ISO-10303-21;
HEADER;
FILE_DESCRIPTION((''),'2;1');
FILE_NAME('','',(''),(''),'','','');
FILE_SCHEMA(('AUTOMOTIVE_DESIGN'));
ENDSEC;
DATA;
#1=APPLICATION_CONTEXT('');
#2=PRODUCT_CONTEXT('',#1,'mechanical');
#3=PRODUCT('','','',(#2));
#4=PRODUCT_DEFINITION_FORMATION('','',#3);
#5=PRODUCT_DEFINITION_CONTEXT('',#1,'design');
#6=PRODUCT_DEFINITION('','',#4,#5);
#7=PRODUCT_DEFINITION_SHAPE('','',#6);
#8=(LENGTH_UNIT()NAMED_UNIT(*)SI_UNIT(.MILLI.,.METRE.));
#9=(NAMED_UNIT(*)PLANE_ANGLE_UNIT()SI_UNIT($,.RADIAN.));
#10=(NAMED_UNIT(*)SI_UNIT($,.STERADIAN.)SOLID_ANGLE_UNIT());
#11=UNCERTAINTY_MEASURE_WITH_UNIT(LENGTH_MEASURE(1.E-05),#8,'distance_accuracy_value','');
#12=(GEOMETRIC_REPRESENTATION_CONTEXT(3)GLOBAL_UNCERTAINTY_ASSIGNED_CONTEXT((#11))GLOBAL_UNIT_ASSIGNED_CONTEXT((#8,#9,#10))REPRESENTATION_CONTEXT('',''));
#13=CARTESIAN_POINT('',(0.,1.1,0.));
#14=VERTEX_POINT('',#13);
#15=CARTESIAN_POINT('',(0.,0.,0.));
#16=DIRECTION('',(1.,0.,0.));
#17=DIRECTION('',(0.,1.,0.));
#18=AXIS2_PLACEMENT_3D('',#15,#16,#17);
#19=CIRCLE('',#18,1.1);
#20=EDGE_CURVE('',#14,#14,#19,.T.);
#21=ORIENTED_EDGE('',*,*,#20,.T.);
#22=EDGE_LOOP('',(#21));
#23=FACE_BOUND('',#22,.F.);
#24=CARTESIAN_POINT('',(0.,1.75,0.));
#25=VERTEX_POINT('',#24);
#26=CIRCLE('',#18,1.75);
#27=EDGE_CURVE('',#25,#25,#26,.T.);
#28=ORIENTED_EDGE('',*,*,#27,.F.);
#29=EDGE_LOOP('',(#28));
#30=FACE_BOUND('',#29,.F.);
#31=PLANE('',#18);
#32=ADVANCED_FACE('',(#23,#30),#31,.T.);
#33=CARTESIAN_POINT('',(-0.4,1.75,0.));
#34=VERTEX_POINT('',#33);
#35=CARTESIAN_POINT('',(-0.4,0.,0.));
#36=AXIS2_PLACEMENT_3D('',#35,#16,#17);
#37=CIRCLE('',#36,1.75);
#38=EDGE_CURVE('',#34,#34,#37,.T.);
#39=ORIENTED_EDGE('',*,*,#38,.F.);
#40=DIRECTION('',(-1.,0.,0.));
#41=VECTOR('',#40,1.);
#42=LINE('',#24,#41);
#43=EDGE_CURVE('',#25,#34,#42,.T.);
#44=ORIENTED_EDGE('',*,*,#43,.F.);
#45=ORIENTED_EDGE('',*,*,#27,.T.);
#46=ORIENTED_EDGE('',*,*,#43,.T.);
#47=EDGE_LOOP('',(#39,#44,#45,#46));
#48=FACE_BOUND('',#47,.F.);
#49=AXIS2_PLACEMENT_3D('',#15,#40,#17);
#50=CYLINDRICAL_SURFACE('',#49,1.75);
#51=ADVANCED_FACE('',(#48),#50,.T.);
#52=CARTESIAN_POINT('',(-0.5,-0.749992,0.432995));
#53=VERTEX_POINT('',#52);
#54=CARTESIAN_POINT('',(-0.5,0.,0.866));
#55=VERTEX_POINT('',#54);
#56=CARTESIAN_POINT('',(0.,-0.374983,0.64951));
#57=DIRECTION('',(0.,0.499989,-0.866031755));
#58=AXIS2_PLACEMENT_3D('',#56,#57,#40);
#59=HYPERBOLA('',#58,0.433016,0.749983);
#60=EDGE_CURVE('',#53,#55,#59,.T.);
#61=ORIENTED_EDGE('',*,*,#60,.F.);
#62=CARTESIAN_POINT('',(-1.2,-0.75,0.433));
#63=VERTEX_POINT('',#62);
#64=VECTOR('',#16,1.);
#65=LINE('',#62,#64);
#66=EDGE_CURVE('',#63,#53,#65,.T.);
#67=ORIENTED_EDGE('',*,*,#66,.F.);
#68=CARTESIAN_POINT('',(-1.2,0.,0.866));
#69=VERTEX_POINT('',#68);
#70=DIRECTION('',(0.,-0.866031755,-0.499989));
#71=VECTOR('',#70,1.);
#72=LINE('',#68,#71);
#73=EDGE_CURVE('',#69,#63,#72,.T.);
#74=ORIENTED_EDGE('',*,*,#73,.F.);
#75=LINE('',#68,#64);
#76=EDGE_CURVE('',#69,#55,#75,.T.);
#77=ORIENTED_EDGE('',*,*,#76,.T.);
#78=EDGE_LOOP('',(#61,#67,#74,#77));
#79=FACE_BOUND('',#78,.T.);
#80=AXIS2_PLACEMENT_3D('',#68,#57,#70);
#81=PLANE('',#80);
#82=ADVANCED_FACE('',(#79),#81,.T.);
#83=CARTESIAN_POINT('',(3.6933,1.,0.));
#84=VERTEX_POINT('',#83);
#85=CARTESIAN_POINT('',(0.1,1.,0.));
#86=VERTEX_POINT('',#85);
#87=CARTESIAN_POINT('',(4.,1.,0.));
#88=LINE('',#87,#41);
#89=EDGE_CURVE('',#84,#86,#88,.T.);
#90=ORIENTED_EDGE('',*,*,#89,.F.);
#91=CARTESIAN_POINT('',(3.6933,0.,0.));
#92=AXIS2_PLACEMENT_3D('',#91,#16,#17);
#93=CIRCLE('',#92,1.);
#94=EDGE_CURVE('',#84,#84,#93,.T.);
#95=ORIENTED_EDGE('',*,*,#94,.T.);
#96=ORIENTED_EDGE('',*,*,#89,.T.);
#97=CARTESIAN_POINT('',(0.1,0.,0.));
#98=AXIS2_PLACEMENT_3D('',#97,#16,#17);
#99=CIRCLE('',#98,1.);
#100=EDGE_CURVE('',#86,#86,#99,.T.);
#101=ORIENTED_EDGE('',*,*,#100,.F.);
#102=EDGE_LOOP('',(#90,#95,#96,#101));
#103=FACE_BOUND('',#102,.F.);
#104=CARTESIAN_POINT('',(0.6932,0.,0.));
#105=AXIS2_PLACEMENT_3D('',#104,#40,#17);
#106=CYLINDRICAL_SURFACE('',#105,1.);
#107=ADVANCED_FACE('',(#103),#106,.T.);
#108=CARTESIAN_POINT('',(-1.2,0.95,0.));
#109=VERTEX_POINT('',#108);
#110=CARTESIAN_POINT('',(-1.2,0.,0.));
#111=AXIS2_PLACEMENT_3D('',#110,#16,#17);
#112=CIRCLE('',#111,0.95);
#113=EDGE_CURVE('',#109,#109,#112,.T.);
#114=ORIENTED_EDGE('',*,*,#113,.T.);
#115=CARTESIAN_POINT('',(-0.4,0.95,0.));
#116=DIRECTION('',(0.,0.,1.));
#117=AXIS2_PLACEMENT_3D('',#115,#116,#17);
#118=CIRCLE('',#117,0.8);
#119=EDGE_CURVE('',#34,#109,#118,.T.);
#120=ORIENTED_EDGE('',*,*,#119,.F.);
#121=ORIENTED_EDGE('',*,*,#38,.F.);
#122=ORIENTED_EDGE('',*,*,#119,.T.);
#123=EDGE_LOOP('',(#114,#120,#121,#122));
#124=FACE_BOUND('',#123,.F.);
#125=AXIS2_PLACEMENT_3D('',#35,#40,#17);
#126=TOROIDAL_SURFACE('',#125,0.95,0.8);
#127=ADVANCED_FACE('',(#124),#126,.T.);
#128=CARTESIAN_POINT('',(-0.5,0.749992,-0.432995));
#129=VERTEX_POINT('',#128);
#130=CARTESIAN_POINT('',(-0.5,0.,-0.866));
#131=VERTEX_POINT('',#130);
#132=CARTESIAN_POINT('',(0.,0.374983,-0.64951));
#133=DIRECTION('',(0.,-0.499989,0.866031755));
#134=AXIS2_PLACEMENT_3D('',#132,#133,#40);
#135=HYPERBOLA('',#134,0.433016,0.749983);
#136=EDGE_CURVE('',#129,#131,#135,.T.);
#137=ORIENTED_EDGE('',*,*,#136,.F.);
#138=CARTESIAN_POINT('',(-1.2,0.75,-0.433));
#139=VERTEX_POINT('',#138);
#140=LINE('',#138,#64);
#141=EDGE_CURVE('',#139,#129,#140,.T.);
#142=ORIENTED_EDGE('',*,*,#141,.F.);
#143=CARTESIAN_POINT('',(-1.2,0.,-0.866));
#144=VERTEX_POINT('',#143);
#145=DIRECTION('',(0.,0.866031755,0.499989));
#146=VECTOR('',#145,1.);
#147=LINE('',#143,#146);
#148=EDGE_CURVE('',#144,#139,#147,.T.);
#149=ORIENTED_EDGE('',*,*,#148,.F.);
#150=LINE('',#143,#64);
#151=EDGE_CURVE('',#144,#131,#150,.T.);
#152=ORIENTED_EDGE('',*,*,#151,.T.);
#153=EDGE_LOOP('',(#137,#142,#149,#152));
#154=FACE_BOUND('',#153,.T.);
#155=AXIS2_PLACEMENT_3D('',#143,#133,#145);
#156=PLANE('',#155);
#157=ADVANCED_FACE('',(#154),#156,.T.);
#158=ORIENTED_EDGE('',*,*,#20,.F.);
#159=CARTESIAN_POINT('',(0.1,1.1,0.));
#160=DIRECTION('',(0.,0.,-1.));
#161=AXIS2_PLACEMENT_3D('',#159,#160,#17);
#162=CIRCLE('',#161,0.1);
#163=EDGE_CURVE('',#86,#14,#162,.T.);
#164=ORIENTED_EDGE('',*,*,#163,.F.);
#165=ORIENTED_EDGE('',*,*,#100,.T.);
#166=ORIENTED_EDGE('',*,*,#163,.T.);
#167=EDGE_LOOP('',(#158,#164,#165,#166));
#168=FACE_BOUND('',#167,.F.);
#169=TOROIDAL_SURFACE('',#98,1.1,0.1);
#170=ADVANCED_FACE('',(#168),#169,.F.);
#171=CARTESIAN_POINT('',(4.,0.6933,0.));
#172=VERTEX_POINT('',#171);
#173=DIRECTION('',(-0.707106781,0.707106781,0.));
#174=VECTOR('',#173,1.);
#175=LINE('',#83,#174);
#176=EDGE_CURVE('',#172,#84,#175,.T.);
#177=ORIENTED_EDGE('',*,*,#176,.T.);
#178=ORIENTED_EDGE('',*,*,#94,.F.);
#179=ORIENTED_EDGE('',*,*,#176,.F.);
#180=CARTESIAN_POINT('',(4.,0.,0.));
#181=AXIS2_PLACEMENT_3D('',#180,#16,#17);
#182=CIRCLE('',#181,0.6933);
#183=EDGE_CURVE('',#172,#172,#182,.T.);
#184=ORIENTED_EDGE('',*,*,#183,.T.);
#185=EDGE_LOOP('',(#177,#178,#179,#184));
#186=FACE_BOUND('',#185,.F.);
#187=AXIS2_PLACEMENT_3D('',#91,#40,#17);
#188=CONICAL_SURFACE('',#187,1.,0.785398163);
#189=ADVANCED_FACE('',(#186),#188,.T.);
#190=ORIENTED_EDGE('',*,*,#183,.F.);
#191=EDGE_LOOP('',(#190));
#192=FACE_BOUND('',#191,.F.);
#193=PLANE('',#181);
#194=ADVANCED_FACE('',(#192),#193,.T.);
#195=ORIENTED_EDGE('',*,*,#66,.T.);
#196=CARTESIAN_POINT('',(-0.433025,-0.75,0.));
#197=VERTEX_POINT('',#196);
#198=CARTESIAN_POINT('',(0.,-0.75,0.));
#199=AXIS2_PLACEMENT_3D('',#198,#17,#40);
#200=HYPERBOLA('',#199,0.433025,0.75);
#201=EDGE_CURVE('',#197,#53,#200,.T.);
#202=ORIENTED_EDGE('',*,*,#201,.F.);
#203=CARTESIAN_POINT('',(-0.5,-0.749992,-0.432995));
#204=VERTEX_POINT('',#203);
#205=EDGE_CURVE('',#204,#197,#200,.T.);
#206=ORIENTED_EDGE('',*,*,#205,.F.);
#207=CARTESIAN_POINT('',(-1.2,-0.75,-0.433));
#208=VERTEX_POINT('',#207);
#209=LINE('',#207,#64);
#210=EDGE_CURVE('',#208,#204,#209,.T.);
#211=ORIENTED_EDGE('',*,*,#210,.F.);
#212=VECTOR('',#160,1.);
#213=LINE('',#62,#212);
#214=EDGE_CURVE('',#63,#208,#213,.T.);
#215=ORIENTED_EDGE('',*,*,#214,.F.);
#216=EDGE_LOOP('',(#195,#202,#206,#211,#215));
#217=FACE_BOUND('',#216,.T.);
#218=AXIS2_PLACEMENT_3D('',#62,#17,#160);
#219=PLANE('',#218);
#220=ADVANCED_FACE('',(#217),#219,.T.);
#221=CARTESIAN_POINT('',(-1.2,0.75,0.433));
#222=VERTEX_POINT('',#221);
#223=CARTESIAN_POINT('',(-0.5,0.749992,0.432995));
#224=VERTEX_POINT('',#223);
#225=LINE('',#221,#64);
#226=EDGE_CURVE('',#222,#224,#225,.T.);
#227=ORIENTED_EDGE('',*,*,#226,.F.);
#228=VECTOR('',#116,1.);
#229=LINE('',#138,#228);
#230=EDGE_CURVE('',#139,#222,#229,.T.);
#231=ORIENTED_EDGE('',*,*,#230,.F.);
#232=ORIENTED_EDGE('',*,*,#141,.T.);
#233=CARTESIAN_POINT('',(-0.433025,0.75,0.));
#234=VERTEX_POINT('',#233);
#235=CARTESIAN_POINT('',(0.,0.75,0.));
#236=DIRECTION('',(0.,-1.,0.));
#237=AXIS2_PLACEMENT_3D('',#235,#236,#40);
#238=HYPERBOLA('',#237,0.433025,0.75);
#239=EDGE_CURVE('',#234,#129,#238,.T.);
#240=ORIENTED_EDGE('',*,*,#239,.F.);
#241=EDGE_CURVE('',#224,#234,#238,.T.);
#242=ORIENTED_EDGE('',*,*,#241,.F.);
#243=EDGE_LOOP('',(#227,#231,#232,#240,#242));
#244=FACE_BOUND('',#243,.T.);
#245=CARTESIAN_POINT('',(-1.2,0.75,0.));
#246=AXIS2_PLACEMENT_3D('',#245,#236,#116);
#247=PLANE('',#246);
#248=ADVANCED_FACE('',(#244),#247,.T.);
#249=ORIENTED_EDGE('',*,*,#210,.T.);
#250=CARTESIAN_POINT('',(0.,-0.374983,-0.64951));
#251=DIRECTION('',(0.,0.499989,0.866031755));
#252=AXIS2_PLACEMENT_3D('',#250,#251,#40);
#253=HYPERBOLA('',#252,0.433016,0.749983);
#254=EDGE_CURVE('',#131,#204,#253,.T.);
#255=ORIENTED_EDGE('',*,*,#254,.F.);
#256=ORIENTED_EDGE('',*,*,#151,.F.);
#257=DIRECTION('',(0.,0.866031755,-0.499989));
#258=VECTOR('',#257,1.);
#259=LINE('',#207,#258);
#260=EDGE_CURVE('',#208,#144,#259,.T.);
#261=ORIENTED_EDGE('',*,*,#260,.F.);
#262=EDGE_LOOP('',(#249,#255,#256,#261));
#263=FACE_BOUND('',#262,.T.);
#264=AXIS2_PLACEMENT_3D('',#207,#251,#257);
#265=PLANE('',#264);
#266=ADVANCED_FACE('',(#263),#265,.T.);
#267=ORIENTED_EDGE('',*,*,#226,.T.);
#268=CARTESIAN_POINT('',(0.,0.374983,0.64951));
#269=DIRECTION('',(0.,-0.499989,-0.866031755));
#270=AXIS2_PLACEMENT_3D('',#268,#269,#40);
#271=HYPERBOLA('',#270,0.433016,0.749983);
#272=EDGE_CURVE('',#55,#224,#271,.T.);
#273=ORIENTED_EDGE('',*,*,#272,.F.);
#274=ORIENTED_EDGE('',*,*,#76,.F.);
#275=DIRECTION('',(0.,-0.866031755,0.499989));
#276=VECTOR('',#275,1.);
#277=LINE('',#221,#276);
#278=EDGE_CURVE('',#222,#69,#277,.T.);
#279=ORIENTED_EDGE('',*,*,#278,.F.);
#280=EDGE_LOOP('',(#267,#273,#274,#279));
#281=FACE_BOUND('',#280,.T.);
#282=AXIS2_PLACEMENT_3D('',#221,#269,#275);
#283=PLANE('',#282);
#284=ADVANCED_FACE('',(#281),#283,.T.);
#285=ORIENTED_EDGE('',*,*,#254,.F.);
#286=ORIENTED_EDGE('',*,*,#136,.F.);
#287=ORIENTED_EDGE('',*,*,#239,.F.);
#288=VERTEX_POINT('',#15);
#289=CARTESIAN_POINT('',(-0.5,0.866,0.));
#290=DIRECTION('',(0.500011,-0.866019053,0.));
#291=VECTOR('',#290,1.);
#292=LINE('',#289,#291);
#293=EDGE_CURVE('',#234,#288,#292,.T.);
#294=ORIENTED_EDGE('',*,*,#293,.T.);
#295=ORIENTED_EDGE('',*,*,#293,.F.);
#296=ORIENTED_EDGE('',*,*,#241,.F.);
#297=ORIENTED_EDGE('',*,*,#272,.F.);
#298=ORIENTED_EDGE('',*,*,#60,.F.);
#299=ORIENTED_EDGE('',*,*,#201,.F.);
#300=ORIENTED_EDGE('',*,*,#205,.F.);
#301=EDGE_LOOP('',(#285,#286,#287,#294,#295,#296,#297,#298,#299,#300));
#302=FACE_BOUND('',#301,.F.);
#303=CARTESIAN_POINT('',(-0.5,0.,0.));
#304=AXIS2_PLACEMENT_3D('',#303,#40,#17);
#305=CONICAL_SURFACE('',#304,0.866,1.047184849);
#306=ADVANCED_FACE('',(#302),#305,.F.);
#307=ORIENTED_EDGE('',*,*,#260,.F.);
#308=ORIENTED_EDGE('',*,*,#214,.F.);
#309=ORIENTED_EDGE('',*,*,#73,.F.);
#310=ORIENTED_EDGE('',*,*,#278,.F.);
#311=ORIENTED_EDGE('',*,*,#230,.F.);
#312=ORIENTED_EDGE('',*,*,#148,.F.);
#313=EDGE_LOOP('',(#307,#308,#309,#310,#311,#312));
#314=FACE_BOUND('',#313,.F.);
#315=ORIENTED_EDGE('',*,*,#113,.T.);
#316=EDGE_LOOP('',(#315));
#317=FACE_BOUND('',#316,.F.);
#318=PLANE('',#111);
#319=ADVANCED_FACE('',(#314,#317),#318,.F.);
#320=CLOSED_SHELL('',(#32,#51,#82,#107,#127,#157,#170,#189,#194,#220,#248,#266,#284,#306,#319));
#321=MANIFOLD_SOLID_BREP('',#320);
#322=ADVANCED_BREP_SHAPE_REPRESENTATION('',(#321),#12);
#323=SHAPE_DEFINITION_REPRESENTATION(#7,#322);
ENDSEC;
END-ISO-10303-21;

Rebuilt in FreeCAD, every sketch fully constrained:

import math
import FreeCAD as App
import Part
import Sketcher

V = App.Vector
Q = App.Units.Quantity


def edges_at(feature, points):
    """Names of the edges that pass closest to the given points."""
    edges = feature.Shape.Edges
    near = lambda p: min(range(len(edges)), key=lambda i: edges[i].distToShape(Part.Vertex(*p))[0])
    return sorted({f"Edge{near(p) + 1}" for p in points})


def add_polygon(sketch, points):
    """Adds a closed chain of lines whose ends are joined by coincident constraints."""
    first, n = sketch.GeometryCount, len(points)
    for a, b in zip(points, points[1:] + points[:1]):
        sketch.addGeometry(Part.LineSegment(App.Vector(*a, 0), App.Vector(*b, 0)), False)
    for i in range(n):
        sketch.addConstraint(Sketcher.Constraint("Coincident", first + i, 2, first + (i + 1) % n, 1))

doc = App.newDocument("Part")
body = doc.addObject("PartDesign::Body", "Body")

# Sketch on XY plane
sketch1 = body.newObject("Sketcher::SketchObject", "Sketch")
sketch1.AttachmentSupport = (doc.getObject("XY_Plane"), [""])
sketch1.MapMode = "FlatFace"
add_polygon(sketch1, [(0, 1), (0, 1.8), (-1.2, 1.8), (-1.2, 0.9), (-0.5, 0.9), (0, 0), (4, 0), (4, 1)])  # lines 0-7
sketch1.addConstraint([
    Sketcher.Constraint("Vertical", 0),
    Sketcher.Constraint("Horizontal", 1),
    Sketcher.Constraint("Vertical", 2),
    Sketcher.Constraint("Horizontal", 3),
    Sketcher.Constraint("Horizontal", 5),
    Sketcher.Constraint("Vertical", 6),
    Sketcher.Constraint("Horizontal", 7),
    Sketcher.Constraint("Coincident", 4, 2, -1, 1),
    Sketcher.Constraint("PointOnObject", 0, 2, -2),
    Sketcher.Constraint("DistanceX", 5, 1, 5, 2, 4.0),
    Sketcher.Constraint("DistanceX", 1, 2, 1, 1, 1.2),
    Sketcher.Constraint("DistanceX", 3, 1, 3, 2, 0.7),
    Sketcher.Constraint("DistanceY", 6, 1, 6, 2, 1.0),
    Sketcher.Constraint("Angle", 4, Q("-59.9993 deg")),
    Sketcher.Constraint("DistanceY", 0, 1, 0, 2, 0.75),
])
revolution = body.newObject("PartDesign::Revolution", "Revolution")
revolution.Profile = sketch1
revolution.ReferenceAxis = (sketch1, ["H_Axis"])
revolution.Angle = 360

# Sketch on YZ plane
sketch2 = body.newObject("Sketcher::SketchObject", "Sketch001")
sketch2.AttachmentSupport = (doc.getObject("YZ_Plane"), [""])
sketch2.MapMode = "FlatFace"
sketch2.AttachmentOffset = App.Placement(V(0, 0, -1.2), App.Rotation())
sketch2.addGeometry([
    Part.LineSegment(V(0.8, 0.4, 0), V(0, 0.9, 0)),  # 0
    Part.ArcOfCircle(Part.Circle(V(0, 0, 0), V(0, 0, 1), 0.9), math.radians(30), math.radians(90)),  # 1
    Part.ArcOfCircle(Part.Circle(V(0, 0, 0), V(0, 0, 1), 0.9), math.radians(90), math.radians(150)),  # 2
    Part.LineSegment(V(0, 0.9, 0), V(-0.8, 0.4, 0)),  # 3
    Part.ArcOfCircle(Part.Circle(V(0, 0, 0), V(0, 0, 1), 0.9), math.radians(-30), math.radians(30)),  # 4
    Part.LineSegment(V(0.8, 0.4, 0), V(0.8, -0.4, 0)),  # 5
    Part.LineSegment(V(-0.8, 0.4, 0), V(-0.8, -0.4, 0)),  # 6
    Part.ArcOfCircle(Part.Circle(V(0, 0, 0), V(0, 0, 1), 0.9), math.radians(150), math.radians(210)),  # 7
    Part.LineSegment(V(-0.8, -0.4, 0), V(0, -0.9, 0)),  # 8
    Part.ArcOfCircle(Part.Circle(V(0, 0, 0), V(0, 0, 1), 0.9), math.radians(-150), math.radians(-90)),  # 9
    Part.ArcOfCircle(Part.Circle(V(0, 0, 0), V(0, 0, 1), 0.9), math.radians(-90), math.radians(-30)),  # 10
    Part.LineSegment(V(0, -0.9, 0), V(0.8, -0.4, 0)),  # 11
], False)
sketch2.addConstraint([
    Sketcher.Constraint("Coincident", 0, 1, 1, 1),
    Sketcher.Constraint("Coincident", 1, 2, 0, 2),
    Sketcher.Constraint("Coincident", 2, 1, 3, 1),
    Sketcher.Constraint("Coincident", 3, 2, 2, 2),
    Sketcher.Constraint("Coincident", 4, 1, 5, 2),
    Sketcher.Constraint("Coincident", 5, 1, 4, 2),
    Sketcher.Constraint("Coincident", 6, 1, 7, 1),
    Sketcher.Constraint("Coincident", 7, 2, 6, 2),
    Sketcher.Constraint("Coincident", 8, 1, 9, 1),
    Sketcher.Constraint("Coincident", 9, 2, 8, 2),
    Sketcher.Constraint("Coincident", 10, 1, 11, 1),
    Sketcher.Constraint("Coincident", 11, 2, 10, 2),
    Sketcher.Constraint("Vertical", 5),
    Sketcher.Constraint("Vertical", 6),
    Sketcher.Constraint("Coincident", 1, 3, -1, 1),
    Sketcher.Constraint("Coincident", 2, 3, -1, 1),
    Sketcher.Constraint("Coincident", 4, 3, -1, 1),
    Sketcher.Constraint("Coincident", 7, 3, -1, 1),
    Sketcher.Constraint("Coincident", 9, 3, -1, 1),
    Sketcher.Constraint("Coincident", 10, 3, -1, 1),
    Sketcher.Constraint("Coincident", 2, 1, 1, 2),
    Sketcher.Constraint("Coincident", 5, 1, 0, 1),
    Sketcher.Constraint("Coincident", 6, 1, 3, 2),
    Sketcher.Constraint("Coincident", 8, 1, 7, 2),
    Sketcher.Constraint("Coincident", 10, 1, 9, 2),
    Sketcher.Constraint("PointOnObject", 1, 2, -2),
    Sketcher.Constraint("PointOnObject", 9, 2, -2),
    Sketcher.Constraint("Parallel", 0, 8),
    Sketcher.Constraint("Parallel", 3, 11),
    Sketcher.Constraint("Angle", 0, Q("150.0007 deg")),
    Sketcher.Constraint("Radius", 1, 0.866),
])
pad1 = body.newObject("PartDesign::Pad", "Pad")
pad1.Profile = sketch2
pad1.Type = "UpToFirst"
doc.recompute()

fillet = body.newObject("PartDesign::Fillet", "Fillet")
fillet.Base = (pad1, edges_at(pad1, [(-1.2, -1.75, 0)]))
fillet.Radius = 0.8
doc.recompute()

chamfer = body.newObject("PartDesign::Chamfer", "Chamfer")
chamfer.Base = (fillet, edges_at(fillet, [(4, -1, 0)]))
chamfer.ChamferType = "Two distances"
chamfer.Size = 0.3067
chamfer.Size2 = 0.3067
doc.recompute()

fillet2 = body.newObject("PartDesign::Fillet", "Fillet001")
fillet2.Base = (chamfer, edges_at(chamfer, [(0, -1, 0)]))
fillet2.Radius = 0.1

doc.recompute()
